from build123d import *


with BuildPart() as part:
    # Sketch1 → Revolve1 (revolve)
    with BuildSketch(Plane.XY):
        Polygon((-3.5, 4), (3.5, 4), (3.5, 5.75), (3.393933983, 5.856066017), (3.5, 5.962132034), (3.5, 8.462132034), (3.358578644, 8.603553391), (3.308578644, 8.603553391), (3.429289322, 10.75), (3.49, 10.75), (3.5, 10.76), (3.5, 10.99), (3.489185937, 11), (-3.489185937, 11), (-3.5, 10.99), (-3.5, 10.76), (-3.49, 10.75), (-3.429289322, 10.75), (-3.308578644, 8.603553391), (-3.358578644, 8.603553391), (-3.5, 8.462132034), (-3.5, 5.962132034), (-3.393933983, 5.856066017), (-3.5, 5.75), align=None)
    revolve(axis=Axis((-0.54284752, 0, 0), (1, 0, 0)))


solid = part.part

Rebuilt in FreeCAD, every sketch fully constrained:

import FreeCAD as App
import Part
import Sketcher
from FreeCAD import Vector


def add_polygon(sketch, points):
    """Adds a closed chain of lines whose ends are joined by coincident constraints."""
    first, n = sketch.GeometryCount, len(points)
    for a, b in zip(points, points[1:] + points[:1]):
        sketch.addGeometry(Part.LineSegment(App.Vector(*a, 0), App.Vector(*b, 0)), False)
    for i in range(n):
        sketch.addConstraint(Sketcher.Constraint("Coincident", first + i, 2, first + (i + 1) % n, 1))

doc = App.newDocument("Part")
params = doc.addObject("Spreadsheet::Sheet", "Params")
for row, (alias, value) in enumerate([
    ("sketch1_width", "7 mm"),
    ("sketch1_height", "2.5 mm"),
    ("sketch1_length", "0.2 mm"),
    ("sketch1_width2", "0.05 mm"),
    ("sketch1_height2", "1.75 mm"),
    ("revolution_angle", "360 deg"),
], start=1):
    params.set(f"A{row}", alias)
    params.set(f"B{row}", "=" + value)
    params.setAlias(f"B{row}", alias)

body = doc.addObject("PartDesign::Body", "Body")

# Sketch on XY plane
sketch1 = doc.addObject("Sketcher::SketchObject", "Sketch")
body.addObject(sketch1)
sketch1.AttachmentSupport = (doc.XY_Plane, [""])
sketch1.MapMode = "FlatFace"
add_polygon(sketch1, [(-3.5, 4), (3.5, 4), (3.5, 5.75), (3.394, 5.856), (3.5, 5.962), (3.5, 8.462), (3.359, 8.604), (3.309, 8.604), (3.429, 10.75), (3.49, 10.75), (3.5, 10.76), (3.5, 10.99), (3.489, 11), (-3.489, 11), (-3.5, 10.99), (-3.5, 10.76), (-3.49, 10.75), (-3.429, 10.75), (-3.309, 8.604), (-3.359, 8.604), (-3.5, 8.462), (-3.5, 5.962), (-3.394, 5.856), (-3.5, 5.75)])  # lines 0-23
sketch1.addConstraint(Sketcher.Constraint("Horizontal", 0))
sketch1.addConstraint(Sketcher.Constraint("Vertical", 1))
sketch1.addConstraint(Sketcher.Constraint("Vertical", 4))
sketch1.addConstraint(Sketcher.Constraint("Horizontal", 6))
sketch1.addConstraint(Sketcher.Constraint("Horizontal", 8))
sketch1.addConstraint(Sketcher.Constraint("Vertical", 10))
sketch1.addConstraint(Sketcher.Constraint("Horizontal", 12))
sketch1.addConstraint(Sketcher.Constraint("Vertical", 14))
sketch1.addConstraint(Sketcher.Constraint("Horizontal", 16))
sketch1.addConstraint(Sketcher.Constraint("Horizontal", 18))
sketch1.addConstraint(Sketcher.Constraint("Vertical", 20))
sketch1.addConstraint(Sketcher.Constraint("Vertical", 23))
sketch1.addConstraint(Sketcher.Constraint("Symmetric", 10, 2, 13, 2, -2))
sketch1.addConstraint(Sketcher.Constraint("Symmetric", 8, 2, 15, 2, -2))
sketch1.addConstraint(Sketcher.Constraint("Symmetric", 6, 2, 17, 2, -2))
sketch1.addConstraint(Sketcher.Constraint("Symmetric", 4, 2, 19, 2, -2))
sketch1.addConstraint(Sketcher.Constraint("Symmetric", 2, 2, 21, 2, -2))
sketch1.addConstraint(Sketcher.Constraint("Symmetric", 1, 2, 22, 2, -2))
sketch1.addConstraint(Sketcher.Constraint("Perpendicular", 2, 3))
sketch1.addConstraint(Sketcher.Constraint("Perpendicular", 3, 5))
sketch1.addConstraint(Sketcher.Constraint("Perpendicular", 5, 9))
sketch1.addConstraint(Sketcher.Constraint("Perpendicular", 9, 15))
sketch1.addConstraint(Sketcher.Constraint("Perpendicular", 15, 19))
sketch1.addConstraint(Sketcher.Constraint("Perpendicular", 19, 21))
sketch1.addConstraint(Sketcher.Constraint("Perpendicular", 21, 22))
sketch1.addConstraint(Sketcher.Constraint("Vertical", 1, 2, 3, 2))
sketch1.addConstraint(Sketcher.Constraint("Vertical", 4, 2, 9, 2))
sketch1.addConstraint(Sketcher.Constraint("Equal", 8, 16))
sketch1.addConstraint(Sketcher.Constraint("Equal", 11, 13))
sketch1.addConstraint(Sketcher.Constraint("DistanceX", 0, 1, 0, 2, 7.0))
sketch1.addConstraint(Sketcher.Constraint("DistanceY", 4, 1, 4, 2, 2.5))
sketch1.addConstraint(Sketcher.Constraint("DistanceY", -1, 1, 0, 2, 4.0))
sketch1.addConstraint(Sketcher.Constraint("DistanceY", -1, 1, 11, 2, 11.0))
sketch1.addConstraint(Sketcher.Constraint("Distance", 5, 0.2))
sketch1.addConstraint(Sketcher.Constraint("DistanceX", 6, 2, 6, 1, 0.05))
sketch1.addConstraint(Sketcher.Constraint("DistanceY", 1, 1, 1, 2, 1.75))
sketch1.addConstraint(Sketcher.Constraint("DistanceY", 10, 1, 10, 2, 0.23))
sketch1.addConstraint(Sketcher.Constraint("Distance", 2, 0.15))
sketch1.addConstraint(Sketcher.Constraint("DistanceY", -1, 1, 7, 2, 10.75))
sketch1.addConstraint(Sketcher.Constraint("DistanceX", -1, 1, 8, 2, 3.49))
sketch1.addConstraint(Sketcher.Constraint("DistanceX", 8, 1, 8, 2, 0.060711))
sketch1.addConstraint(Sketcher.Constraint("DistanceX", 12, 2, 12, 1, 6.978372))
sketch1.setExpression("Constraints[53]", "Params.sketch1_width")
sketch1.setExpression("Constraints[54]", "Params.sketch1_height")
sketch1.setExpression("Constraints[57]", "Params.sketch1_length")
sketch1.setExpression("Constraints[58]", "Params.sketch1_width2")
sketch1.setExpression("Constraints[59]", "Params.sketch1_height2")
revolution = doc.addObject("PartDesign::Revolution", "Revolution")
body.addObject(revolution)
revolution.Profile = sketch1
revolution.ReferenceAxis = (sketch1, ["H_Axis"])
revolution.setExpression("Angle", "Params.revolution_angle")

doc.recompute()
